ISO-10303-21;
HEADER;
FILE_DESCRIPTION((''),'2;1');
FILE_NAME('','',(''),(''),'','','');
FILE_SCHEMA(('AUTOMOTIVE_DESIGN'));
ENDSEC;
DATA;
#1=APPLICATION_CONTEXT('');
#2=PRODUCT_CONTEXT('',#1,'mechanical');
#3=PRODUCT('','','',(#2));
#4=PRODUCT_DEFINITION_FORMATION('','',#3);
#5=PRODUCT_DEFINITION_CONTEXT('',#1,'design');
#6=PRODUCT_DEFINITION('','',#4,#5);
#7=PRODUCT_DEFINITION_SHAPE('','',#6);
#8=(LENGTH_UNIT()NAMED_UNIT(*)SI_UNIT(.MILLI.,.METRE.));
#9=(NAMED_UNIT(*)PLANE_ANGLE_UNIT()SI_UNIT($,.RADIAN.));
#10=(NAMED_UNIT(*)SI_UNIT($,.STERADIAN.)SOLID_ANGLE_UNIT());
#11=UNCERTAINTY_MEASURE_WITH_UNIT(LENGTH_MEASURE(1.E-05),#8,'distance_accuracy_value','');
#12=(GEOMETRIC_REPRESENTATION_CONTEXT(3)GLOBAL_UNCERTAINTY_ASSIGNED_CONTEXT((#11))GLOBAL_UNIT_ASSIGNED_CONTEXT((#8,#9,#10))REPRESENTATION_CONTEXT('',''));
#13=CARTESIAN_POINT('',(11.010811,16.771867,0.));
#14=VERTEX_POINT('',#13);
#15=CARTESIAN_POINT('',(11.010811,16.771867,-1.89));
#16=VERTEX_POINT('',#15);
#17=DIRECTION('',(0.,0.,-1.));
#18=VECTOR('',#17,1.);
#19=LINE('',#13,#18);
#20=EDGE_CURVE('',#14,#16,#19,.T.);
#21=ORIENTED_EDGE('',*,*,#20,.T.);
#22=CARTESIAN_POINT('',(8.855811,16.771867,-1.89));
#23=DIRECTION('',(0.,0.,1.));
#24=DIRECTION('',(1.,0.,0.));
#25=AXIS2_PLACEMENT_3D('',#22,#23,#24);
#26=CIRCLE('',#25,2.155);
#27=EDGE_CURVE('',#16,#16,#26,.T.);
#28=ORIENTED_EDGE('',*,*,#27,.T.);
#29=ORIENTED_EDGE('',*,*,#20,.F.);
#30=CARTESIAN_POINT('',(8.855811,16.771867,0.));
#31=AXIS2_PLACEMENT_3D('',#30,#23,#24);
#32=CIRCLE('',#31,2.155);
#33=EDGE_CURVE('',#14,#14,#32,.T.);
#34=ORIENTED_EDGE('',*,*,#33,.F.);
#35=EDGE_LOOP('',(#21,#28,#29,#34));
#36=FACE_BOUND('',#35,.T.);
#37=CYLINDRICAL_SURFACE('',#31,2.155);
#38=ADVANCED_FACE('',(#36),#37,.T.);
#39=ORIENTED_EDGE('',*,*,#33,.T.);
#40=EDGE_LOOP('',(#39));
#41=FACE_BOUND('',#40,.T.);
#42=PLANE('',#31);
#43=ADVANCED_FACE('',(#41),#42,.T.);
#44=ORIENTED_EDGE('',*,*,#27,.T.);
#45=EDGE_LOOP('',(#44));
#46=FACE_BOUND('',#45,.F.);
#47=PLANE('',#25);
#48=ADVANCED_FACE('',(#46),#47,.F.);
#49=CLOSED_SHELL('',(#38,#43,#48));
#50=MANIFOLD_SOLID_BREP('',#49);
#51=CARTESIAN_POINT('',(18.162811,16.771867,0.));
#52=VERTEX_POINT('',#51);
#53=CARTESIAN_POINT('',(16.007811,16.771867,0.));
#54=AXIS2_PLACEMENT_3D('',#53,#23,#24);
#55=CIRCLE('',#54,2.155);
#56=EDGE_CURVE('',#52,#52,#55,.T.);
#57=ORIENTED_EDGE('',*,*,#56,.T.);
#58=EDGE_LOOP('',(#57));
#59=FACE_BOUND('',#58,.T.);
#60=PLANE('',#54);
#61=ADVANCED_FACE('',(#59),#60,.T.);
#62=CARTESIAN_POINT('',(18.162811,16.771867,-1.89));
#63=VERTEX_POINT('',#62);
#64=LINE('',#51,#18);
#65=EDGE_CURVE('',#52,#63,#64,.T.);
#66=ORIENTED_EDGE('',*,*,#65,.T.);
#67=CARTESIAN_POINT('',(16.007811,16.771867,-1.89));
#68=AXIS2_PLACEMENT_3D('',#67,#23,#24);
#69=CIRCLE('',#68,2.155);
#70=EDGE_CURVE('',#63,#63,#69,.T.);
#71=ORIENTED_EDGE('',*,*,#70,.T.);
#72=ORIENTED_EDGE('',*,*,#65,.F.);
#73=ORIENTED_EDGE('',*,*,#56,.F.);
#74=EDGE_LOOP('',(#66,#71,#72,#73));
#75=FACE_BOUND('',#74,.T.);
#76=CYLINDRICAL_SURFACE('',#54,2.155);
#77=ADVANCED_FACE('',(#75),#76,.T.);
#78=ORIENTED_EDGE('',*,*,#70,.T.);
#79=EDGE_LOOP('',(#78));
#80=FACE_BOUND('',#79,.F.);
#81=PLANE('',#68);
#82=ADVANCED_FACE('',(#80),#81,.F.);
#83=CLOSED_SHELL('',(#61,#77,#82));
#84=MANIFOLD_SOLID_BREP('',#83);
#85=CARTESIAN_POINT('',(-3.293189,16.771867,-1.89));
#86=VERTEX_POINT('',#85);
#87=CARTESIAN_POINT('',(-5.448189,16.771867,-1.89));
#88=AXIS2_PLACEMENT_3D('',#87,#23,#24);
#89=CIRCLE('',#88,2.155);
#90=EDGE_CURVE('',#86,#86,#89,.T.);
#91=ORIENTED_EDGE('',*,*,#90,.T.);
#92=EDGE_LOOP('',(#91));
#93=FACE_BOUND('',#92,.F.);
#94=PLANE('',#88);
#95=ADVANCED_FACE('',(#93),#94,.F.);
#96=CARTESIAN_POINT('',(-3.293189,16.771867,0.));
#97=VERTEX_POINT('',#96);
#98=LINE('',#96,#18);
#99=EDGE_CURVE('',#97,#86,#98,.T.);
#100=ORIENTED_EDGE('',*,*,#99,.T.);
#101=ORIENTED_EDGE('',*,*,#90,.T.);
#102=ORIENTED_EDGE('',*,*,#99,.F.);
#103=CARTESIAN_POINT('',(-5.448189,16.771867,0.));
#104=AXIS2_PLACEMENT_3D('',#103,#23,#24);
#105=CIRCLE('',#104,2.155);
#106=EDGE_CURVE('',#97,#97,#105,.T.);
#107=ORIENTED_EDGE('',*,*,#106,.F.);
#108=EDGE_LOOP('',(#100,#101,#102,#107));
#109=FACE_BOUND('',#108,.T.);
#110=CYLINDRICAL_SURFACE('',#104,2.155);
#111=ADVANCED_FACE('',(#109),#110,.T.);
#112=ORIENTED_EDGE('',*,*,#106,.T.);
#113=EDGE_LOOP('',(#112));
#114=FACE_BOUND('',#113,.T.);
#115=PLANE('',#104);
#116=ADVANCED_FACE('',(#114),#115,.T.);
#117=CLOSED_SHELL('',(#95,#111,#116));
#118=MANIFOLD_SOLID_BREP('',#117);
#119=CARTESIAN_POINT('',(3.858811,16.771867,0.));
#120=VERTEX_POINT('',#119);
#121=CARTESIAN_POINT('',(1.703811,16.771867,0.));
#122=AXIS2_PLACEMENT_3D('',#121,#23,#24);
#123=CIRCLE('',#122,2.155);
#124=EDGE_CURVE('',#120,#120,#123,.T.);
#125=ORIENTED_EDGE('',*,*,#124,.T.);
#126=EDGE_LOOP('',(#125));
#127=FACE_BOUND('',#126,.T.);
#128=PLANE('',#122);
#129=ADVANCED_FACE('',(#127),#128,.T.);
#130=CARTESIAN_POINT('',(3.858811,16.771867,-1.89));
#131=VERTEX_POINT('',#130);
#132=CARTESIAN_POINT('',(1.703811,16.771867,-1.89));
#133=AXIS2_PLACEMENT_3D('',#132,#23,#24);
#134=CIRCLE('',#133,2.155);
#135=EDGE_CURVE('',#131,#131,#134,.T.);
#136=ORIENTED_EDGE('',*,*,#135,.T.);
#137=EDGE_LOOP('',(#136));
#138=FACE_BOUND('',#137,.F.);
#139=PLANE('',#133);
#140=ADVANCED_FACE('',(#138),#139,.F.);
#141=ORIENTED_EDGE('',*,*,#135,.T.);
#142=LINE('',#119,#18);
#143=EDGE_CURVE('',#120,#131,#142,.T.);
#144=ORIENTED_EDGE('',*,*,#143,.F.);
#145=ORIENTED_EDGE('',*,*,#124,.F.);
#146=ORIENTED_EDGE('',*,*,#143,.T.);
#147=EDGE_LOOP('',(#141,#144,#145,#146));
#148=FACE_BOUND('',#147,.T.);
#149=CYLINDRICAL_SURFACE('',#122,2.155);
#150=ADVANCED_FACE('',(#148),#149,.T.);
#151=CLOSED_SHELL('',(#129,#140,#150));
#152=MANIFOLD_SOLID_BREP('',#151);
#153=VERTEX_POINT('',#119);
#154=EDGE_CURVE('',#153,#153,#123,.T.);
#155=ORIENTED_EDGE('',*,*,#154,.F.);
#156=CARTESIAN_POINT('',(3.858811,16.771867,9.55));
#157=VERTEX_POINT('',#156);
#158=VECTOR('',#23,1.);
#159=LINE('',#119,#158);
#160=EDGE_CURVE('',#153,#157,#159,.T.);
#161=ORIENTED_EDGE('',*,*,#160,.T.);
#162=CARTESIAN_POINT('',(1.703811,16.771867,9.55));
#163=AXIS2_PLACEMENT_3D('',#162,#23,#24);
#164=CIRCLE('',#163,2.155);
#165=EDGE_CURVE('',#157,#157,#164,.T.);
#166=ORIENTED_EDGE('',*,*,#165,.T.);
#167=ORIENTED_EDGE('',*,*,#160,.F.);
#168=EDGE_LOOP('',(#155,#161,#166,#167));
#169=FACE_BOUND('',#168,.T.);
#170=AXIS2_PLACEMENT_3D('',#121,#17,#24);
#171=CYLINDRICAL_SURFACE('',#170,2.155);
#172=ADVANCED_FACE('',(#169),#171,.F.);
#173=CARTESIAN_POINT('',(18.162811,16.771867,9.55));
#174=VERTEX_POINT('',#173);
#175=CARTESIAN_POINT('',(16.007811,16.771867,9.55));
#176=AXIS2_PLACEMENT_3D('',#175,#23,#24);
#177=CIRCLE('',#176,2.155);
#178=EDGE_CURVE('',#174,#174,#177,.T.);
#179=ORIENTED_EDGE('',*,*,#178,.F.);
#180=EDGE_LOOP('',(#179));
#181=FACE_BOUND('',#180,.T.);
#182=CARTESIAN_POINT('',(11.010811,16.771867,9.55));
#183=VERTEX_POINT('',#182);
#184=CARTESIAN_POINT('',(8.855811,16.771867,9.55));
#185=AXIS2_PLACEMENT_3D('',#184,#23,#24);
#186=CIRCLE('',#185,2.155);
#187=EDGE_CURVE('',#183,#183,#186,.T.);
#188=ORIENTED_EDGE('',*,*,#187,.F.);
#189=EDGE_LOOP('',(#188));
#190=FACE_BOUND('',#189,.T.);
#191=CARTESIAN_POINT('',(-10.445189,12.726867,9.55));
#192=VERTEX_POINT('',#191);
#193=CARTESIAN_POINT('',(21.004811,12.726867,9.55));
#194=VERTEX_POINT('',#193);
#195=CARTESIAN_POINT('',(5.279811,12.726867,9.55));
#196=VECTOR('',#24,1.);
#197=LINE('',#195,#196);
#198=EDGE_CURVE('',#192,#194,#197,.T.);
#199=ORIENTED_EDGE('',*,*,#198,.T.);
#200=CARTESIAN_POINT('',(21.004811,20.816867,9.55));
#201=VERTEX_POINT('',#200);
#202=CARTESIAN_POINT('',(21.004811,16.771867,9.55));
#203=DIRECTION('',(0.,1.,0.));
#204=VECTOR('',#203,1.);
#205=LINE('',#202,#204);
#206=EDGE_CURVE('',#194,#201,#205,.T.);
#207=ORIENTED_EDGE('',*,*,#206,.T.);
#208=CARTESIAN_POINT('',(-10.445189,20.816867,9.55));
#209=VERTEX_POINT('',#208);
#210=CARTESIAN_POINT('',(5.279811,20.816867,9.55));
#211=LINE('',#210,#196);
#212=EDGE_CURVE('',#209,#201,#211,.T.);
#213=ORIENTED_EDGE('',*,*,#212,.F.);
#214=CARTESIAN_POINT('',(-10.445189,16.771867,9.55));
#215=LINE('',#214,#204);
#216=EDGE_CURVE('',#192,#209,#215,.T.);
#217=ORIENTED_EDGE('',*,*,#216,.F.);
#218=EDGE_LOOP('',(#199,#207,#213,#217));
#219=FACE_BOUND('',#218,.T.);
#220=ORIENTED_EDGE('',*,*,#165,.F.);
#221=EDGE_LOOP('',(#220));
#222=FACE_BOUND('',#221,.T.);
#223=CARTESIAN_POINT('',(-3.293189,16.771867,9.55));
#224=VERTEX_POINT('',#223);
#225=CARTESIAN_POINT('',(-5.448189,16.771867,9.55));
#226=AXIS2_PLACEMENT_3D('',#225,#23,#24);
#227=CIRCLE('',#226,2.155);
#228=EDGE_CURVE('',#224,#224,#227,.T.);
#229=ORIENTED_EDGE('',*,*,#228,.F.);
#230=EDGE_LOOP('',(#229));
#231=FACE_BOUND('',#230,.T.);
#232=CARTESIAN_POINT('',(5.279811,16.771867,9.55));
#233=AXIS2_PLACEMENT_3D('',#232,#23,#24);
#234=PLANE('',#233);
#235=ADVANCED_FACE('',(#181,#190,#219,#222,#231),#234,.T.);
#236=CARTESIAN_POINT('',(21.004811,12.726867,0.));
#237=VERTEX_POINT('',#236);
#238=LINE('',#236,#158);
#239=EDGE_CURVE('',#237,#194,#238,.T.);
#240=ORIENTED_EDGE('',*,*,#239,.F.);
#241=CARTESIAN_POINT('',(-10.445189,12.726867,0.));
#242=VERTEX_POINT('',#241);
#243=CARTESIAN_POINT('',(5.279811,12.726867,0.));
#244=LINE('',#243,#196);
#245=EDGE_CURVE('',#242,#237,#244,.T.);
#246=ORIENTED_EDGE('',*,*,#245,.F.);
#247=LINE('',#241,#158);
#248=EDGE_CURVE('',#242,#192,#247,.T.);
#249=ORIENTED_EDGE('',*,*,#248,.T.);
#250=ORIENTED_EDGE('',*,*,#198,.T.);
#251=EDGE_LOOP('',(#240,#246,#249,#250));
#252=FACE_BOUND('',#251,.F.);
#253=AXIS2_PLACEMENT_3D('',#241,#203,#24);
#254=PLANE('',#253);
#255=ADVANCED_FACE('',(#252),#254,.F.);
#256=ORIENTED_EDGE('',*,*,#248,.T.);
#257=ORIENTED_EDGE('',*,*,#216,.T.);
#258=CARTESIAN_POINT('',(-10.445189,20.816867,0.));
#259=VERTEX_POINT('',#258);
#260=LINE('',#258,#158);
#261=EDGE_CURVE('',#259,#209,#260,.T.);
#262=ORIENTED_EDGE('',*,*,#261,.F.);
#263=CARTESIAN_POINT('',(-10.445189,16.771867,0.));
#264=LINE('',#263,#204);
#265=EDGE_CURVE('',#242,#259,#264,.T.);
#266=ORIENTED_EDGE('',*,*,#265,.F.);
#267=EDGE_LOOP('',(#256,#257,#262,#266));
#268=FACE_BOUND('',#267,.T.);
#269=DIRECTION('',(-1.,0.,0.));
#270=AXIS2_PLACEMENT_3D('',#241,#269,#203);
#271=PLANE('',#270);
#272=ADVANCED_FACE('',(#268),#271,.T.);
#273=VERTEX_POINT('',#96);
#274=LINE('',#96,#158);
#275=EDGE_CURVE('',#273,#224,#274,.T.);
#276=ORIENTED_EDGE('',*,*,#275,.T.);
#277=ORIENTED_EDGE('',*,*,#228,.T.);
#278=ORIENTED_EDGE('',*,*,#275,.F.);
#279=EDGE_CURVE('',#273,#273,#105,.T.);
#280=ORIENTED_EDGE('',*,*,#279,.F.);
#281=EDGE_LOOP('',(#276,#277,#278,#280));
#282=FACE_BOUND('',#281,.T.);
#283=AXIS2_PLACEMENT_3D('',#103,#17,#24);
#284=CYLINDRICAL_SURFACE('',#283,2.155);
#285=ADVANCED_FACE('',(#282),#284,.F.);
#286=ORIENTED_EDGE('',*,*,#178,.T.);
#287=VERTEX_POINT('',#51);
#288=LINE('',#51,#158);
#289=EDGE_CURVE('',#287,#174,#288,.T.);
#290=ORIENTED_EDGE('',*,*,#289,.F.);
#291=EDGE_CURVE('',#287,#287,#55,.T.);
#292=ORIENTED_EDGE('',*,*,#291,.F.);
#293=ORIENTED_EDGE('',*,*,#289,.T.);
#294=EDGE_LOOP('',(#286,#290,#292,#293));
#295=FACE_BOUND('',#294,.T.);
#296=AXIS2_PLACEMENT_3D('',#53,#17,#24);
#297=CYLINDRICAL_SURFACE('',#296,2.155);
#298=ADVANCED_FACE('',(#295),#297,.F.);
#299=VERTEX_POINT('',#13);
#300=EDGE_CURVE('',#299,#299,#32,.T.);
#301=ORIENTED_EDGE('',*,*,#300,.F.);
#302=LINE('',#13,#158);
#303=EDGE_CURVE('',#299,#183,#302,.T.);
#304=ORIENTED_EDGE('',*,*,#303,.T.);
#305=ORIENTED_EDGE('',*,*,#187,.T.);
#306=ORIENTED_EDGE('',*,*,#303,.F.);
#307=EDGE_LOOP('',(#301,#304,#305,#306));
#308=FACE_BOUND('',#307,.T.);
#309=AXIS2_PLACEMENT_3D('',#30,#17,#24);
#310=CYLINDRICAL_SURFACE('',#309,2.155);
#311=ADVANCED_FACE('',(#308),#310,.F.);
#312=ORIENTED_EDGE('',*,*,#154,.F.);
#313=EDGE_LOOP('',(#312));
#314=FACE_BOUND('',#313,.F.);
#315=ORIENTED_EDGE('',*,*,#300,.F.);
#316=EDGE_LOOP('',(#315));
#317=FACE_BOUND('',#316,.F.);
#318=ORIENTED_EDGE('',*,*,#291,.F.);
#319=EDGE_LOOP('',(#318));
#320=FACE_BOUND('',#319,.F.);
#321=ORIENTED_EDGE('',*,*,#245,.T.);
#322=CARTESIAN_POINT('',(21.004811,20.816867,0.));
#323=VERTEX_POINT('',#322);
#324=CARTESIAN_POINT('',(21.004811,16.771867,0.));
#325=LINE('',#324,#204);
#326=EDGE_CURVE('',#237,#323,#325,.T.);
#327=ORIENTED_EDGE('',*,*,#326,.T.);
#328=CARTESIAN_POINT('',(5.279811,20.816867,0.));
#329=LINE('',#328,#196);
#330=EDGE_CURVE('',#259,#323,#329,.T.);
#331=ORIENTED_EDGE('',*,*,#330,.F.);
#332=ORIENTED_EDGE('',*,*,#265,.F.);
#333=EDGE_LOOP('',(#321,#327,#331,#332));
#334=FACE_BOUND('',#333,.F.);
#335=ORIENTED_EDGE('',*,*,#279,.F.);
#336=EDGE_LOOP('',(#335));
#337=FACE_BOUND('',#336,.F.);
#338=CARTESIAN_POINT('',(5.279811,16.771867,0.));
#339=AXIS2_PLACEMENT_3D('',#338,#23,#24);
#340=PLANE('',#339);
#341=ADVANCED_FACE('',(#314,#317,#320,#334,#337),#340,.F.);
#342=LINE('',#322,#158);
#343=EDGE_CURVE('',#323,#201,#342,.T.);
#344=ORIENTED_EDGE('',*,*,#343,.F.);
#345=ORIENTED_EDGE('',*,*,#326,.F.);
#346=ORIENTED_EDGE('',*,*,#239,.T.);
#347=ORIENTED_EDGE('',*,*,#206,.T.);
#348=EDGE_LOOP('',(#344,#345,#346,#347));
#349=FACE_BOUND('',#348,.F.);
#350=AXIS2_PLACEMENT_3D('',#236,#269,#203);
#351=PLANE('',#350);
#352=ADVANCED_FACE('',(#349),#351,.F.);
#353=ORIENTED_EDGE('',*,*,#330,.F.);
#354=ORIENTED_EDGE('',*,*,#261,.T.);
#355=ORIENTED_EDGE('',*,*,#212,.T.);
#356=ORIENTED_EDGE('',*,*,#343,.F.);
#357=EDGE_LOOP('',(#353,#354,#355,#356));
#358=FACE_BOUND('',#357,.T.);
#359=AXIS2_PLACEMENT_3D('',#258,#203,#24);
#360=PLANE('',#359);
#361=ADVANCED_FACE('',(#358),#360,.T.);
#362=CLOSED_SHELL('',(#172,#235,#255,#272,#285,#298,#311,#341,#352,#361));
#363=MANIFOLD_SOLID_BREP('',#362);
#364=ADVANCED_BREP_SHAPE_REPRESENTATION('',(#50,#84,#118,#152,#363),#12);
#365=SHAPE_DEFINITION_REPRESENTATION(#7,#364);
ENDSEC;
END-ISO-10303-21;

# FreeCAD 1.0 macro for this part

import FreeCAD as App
import Part
import Sketcher
from FreeCAD import Vector

doc = App.newDocument("Part")
params = doc.addObject("Spreadsheet::Sheet", "Params")
for row, (alias, value) in enumerate([
    ("sketch1_diameter", "4.31 mm"),
    ("pad1_length", "1.89 mm"),
    ("sketch2_diameter", "4.31 mm"),
    ("sketch2_width", "31.45 mm"),
    ("sketch2_height", "8.09 mm"),
    ("pad2_length", "9.55 mm"),
], start=1):
    params.set(f"A{row}", alias)
    params.set(f"B{row}", "=" + value)
    params.setAlias(f"B{row}", alias)

body = doc.addObject("PartDesign::Body", "Body")
body.AllowCompound = True

sketch1 = doc.addObject("Sketcher::SketchObject", "Sketch")
body.addObject(sketch1)
sketch1.AttachmentSupport = (doc.XY_Plane, [""])
sketch1.MapMode = "FlatFace"
sketch1.addGeometry(Part.Circle(Vector(1.7, 16.8, 0), Vector(0, 0, 1), 2.2), False)
sketch1.addGeometry(Part.Circle(Vector(8.9, 16.8, 0), Vector(0, 0, 1), 2.2), False)
sketch1.addGeometry(Part.Circle(Vector(16, 16.8, 0), Vector(0, 0, 1), 2.2), False)
sketch1.addGeometry(Part.Circle(Vector(-5.4, 16.8, 0), Vector(0, 0, 1), 2.2), False)
sketch1.addConstraint(Sketcher.Constraint("Equal", 0, 1))
sketch1.addConstraint(Sketcher.Constraint("Equal", 1, 2))
sketch1.addConstraint(Sketcher.Constraint("Equal", 2, 3))
sketch1.addConstraint(Sketcher.Constraint("Horizontal", 0, 3, 1, 3))
sketch1.addConstraint(Sketcher.Constraint("Horizontal", 1, 3, 2, 3))
sketch1.addConstraint(Sketcher.Constraint("Horizontal", 2, 3, 3, 3))
sketch1.addConstraint(Sketcher.Constraint("Diameter", 0, 4.31))
sketch1.addConstraint(Sketcher.Constraint("DistanceX", 0, 3, 1, 3, 7.152))
sketch1.addConstraint(Sketcher.Constraint("DistanceX", 1, 3, 2, 3, 7.152))
sketch1.addConstraint(Sketcher.Constraint("DistanceX", 3, 3, 0, 3, 7.152))
sketch1.addConstraint(Sketcher.Constraint("DistanceX", -1, 1, 0, 3, 1.703811))
sketch1.addConstraint(Sketcher.Constraint("DistanceY", -1, 1, 0, 3, 16.771867))
sketch1.setExpression("Constraints[6]", "Params.sketch1_diameter")
pad1 = doc.addObject("PartDesign::Pad", "Pad")
body.addObject(pad1)
pad1.Profile = sketch1
pad1.setExpression("Length", "Params.pad1_length")
pad1.Reversed = True
body2 = doc.addObject("PartDesign::Body", "Body001")

sketch2 = doc.addObject("Sketcher::SketchObject", "Sketch001")
body2.addObject(sketch2)
sketch2.AttachmentSupport = (doc.getObject("XY_Plane001"), [""])
sketch2.MapMode = "FlatFace"
sketch2.addGeometry(Part.LineSegment(Vector(-10.4, 20.8, 0), Vector(-10.4, 12.7, 0)), False)
sketch2.addGeometry(Part.LineSegment(Vector(-10.4, 12.7, 0), Vector(21, 12.7, 0)), False)
sketch2.addGeometry(Part.LineSegment(Vector(21, 12.7, 0), Vector(21, 20.8, 0)), False)
sketch2.addGeometry(Part.LineSegment(Vector(21, 20.8, 0), Vector(-10.4, 20.8, 0)), False)
sketch2.addGeometry(Part.Circle(Vector(-5.4, 16.8, 0), Vector(0, 0, 1), 2.2), False)
sketch2.addGeometry(Part.Circle(Vector(1.7, 16.8, 0), Vector(0, 0, 1), 2.2), False)
sketch2.addGeometry(Part.Circle(Vector(8.9, 16.8, 0), Vector(0, 0, 1), 2.2), False)
sketch2.addGeometry(Part.Circle(Vector(16, 16.8, 0), Vector(0, 0, 1), 2.2), False)
sketch2.addConstraint(Sketcher.Constraint("Coincident", 0, 2, 1, 1))
sketch2.addConstraint(Sketcher.Constraint("Coincident", 1, 2, 2, 1))
sketch2.addConstraint(Sketcher.Constraint("Coincident", 2, 2, 3, 1))
sketch2.addConstraint(Sketcher.Constraint("Coincident", 3, 2, 0, 1))
sketch2.addConstraint(Sketcher.Constraint("Vertical", 0))
sketch2.addConstraint(Sketcher.Constraint("Horizontal", 1))
sketch2.addConstraint(Sketcher.Constraint("Vertical", 2))
sketch2.addConstraint(Sketcher.Constraint("Horizontal", 3))
sketch2.addConstraint(Sketcher.Constraint("Equal", 4, 5))
sketch2.addConstraint(Sketcher.Constraint("Equal", 5, 6))
sketch2.addConstraint(Sketcher.Constraint("Equal", 6, 7))
sketch2.addConstraint(Sketcher.Constraint("Horizontal", 4, 3, 5, 3))
sketch2.addConstraint(Sketcher.Constraint("Horizontal", 5, 3, 6, 3))
sketch2.addConstraint(Sketcher.Constraint("Horizontal", 6, 3, 7, 3))
sketch2.addConstraint(Sketcher.Constraint("Diameter", 4, 4.31))
sketch2.addConstraint(Sketcher.Constraint("DistanceX", 1, 1, 1, 2, 31.45))
sketch2.addConstraint(Sketcher.Constraint("DistanceY", 0, 2, 0, 1, 8.09))
sketch2.addConstraint(Sketcher.Constraint("DistanceX", 4, 3, 5, 3, 7.152))
sketch2.addConstraint(Sketcher.Constraint("DistanceX", 5, 3, 6, 3, 7.152))
sketch2.addConstraint(Sketcher.Constraint("DistanceX", 6, 3, 7, 3, 7.152))
sketch2.addConstraint(Sketcher.Constraint("DistanceX", 0, 2, 4, 3, 4.997))
sketch2.addConstraint(Sketcher.Constraint("DistanceY", 0, 2, 4, 3, 4.045))
sketch2.addConstraint(Sketcher.Constraint("DistanceX", 4, 3, -1, 1, 5.448189))
sketch2.addConstraint(Sketcher.Constraint("DistanceY", -1, 1, 4, 3, 16.771867))
sketch2.setExpression("Constraints[14]", "Params.sketch2_diameter")
sketch2.setExpression("Constraints[15]", "Params.sketch2_width")
sketch2.setExpression("Constraints[16]", "Params.sketch2_height")
pad2 = doc.addObject("PartDesign::Pad", "Pad001")
body2.addObject(pad2)
pad2.Profile = sketch2
pad2.setExpression("Length", "Params.pad2_length")

doc.recompute()
